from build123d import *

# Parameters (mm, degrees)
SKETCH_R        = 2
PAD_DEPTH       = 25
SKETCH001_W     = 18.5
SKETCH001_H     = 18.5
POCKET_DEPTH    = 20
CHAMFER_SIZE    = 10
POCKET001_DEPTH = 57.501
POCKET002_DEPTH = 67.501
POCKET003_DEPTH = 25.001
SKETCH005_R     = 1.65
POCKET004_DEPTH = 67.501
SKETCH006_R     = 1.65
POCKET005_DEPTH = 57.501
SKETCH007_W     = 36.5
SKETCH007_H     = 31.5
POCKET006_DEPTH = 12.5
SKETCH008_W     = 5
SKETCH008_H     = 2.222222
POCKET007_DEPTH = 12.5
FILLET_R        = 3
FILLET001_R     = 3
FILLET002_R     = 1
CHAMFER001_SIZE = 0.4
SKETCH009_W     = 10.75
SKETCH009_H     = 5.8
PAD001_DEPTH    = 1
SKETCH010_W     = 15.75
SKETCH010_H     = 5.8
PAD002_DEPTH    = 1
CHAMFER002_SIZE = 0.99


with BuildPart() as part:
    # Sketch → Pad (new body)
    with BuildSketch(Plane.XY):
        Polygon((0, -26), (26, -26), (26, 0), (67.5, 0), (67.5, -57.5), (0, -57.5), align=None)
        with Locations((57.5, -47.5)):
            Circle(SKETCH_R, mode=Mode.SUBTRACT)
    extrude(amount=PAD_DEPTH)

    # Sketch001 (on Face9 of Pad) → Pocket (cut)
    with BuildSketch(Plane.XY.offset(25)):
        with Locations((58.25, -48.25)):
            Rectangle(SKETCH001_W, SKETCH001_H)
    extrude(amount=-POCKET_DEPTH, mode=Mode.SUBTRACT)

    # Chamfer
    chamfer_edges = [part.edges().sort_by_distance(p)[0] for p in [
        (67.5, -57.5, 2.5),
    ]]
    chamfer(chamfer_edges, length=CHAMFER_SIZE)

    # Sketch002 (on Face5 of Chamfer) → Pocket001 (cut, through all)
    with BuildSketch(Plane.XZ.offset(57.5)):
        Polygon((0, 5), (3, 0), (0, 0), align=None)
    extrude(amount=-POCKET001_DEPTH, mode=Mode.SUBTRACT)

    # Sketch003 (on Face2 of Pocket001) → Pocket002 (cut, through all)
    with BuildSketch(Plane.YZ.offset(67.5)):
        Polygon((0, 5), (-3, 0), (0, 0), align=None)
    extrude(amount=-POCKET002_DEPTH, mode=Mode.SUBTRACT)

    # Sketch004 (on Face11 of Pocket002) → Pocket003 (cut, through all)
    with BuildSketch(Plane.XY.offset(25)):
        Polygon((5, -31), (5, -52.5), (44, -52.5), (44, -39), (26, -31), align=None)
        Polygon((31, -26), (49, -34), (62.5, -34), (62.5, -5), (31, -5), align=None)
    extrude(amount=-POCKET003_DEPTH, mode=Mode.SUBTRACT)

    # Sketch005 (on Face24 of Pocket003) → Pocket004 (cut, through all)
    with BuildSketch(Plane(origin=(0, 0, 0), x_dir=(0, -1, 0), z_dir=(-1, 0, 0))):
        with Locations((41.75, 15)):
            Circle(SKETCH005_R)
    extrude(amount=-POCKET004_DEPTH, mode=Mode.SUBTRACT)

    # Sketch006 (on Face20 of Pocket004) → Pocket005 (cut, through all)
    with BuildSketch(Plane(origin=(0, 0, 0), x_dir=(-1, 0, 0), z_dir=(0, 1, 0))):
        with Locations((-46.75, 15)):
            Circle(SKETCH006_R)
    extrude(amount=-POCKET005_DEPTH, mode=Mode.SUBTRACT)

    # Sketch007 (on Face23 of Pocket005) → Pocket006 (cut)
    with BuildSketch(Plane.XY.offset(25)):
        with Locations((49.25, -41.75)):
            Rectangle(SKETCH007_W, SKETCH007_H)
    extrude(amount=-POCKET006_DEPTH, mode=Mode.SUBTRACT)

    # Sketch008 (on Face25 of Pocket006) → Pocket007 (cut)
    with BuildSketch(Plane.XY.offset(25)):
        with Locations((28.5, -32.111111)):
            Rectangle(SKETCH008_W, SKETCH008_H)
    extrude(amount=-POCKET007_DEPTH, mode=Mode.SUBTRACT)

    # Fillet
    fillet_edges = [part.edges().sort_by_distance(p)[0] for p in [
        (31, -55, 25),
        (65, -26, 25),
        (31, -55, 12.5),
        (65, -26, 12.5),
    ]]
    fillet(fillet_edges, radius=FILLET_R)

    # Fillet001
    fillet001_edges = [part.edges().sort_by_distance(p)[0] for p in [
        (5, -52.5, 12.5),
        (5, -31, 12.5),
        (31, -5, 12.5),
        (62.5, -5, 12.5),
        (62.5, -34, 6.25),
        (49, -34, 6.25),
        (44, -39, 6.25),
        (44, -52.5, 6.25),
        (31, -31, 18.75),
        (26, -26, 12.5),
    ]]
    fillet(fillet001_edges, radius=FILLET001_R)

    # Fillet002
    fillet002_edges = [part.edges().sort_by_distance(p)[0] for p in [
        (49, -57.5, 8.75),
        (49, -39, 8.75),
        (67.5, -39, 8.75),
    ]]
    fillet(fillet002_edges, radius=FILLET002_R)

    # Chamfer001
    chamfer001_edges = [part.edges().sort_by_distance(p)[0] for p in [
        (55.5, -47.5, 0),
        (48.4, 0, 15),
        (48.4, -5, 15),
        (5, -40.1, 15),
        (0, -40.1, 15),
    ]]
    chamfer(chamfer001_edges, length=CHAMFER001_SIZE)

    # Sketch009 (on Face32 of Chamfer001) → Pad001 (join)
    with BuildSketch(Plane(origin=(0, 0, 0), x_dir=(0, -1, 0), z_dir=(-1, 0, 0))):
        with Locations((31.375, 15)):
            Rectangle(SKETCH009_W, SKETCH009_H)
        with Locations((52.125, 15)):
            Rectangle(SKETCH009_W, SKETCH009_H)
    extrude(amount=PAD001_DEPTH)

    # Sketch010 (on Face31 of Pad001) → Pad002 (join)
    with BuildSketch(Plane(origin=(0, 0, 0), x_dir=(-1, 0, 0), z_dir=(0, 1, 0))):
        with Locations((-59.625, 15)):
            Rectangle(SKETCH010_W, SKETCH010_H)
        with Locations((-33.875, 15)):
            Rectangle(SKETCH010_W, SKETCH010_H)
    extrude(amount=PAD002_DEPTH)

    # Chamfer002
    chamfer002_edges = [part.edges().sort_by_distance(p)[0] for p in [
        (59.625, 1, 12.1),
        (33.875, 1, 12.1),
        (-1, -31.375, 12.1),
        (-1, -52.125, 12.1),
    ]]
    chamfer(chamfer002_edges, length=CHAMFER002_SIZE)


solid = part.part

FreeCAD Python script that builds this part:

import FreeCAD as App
import Part
import Sketcher
Q = App.Units.Quantity


def edges_at(feature, points):
    """Names of the edges that pass closest to the given points."""
    edges = feature.Shape.Edges
    near = lambda p: min(range(len(edges)), key=lambda i: edges[i].distToShape(Part.Vertex(*p))[0])
    return sorted({f"Edge{near(p) + 1}" for p in points})


def add_polygon(sketch, points):
    """Adds a closed chain of lines whose ends are joined by coincident constraints."""
    first, n = sketch.GeometryCount, len(points)
    for a, b in zip(points, points[1:] + points[:1]):
        sketch.addGeometry(Part.LineSegment(App.Vector(*a, 0), App.Vector(*b, 0)), False)
    for i in range(n):
        sketch.addConstraint(Sketcher.Constraint("Coincident", first + i, 2, first + (i + 1) % n, 1))

doc = App.newDocument("Part")
body = doc.addObject("PartDesign::Body", "Body")

# Sketch on XY plane
sketch1 = body.newObject("Sketcher::SketchObject", "Sketch")
sketch1.AttachmentSupport = (doc.getObject("XY_Plane"), [""])
sketch1.MapMode = "FlatFace"
add_polygon(sketch1, [(26, -26), (0, -26), (0, -57.5), (67.5, -57.5), (67.5, 0), (26, 0)])  # lines 0-5
sketch1.addGeometry(Part.Circle(App.Vector(57.5, -47.5, 0), App.Vector(0, 0, 1), 2), False)  # 6
sketch1.addConstraint([
    Sketcher.Constraint("Horizontal", 0),
    Sketcher.Constraint("Vertical", 1),
    Sketcher.Constraint("Horizontal", 2),
    Sketcher.Constraint("Vertical", 3),
    Sketcher.Constraint("Horizontal", 4),
    Sketcher.Constraint("Vertical", 5),
    Sketcher.Constraint("PointOnObject", 0, 2, -2),
    Sketcher.Constraint("PointOnObject", 3, 2, -1),
    Sketcher.Constraint("Equal", 0, 5),
    Sketcher.Constraint("Diameter", 6, Q("4 mm")),
    Sketcher.Constraint("DistanceX", 0, 2, 0, 1, Q("26 mm")),
    Sketcher.Constraint("DistanceX", 2, 1, 2, 2, Q("67.5 mm")),
    Sketcher.Constraint("DistanceY", 1, 2, 1, 1, Q("31.5 mm")),
    Sketcher.Constraint("DistanceY", 1, 2, 6, 3, Q("10 mm")),
    Sketcher.Constraint("DistanceX", 6, 3, 2, 2, Q("10 mm")),
])
pad1 = body.newObject("PartDesign::Pad", "Pad")
pad1.Profile = sketch1
pad1.Length = 25

# Sketch on XY plane
sketch2 = body.newObject("Sketcher::SketchObject", "Sketch001")
sketch2.AttachmentSupport = (doc.getObject("XY_Plane"), [""])
sketch2.MapMode = "FlatFace"
sketch2.AttachmentOffset = App.Placement(App.Vector(0, 0, 25), App.Rotation())
add_polygon(sketch2, [(49, -39), (49, -58), (68, -58), (68, -39)])  # lines 0-3
sketch2.addConstraint([
    Sketcher.Constraint("Vertical", 0),
    Sketcher.Constraint("Horizontal", 1),
    Sketcher.Constraint("Vertical", 2),
    Sketcher.Constraint("Horizontal", 3),
    Sketcher.Constraint("Equal", 3, 0),
    Sketcher.Constraint("DistanceX", 1, 1, 1, 2, Q("18.5 mm")),
    Sketcher.Constraint("DistanceX", -1, 1, 0, 2, Q("49 mm")),
    Sketcher.Constraint("DistanceY", 2, 2, -1, 1, Q("39 mm")),
])
pocket1 = body.newObject("PartDesign::Pocket", "Pocket")
pocket1.Profile = sketch2
pocket1.Length = 20
doc.recompute()

chamfer = body.newObject("PartDesign::Chamfer", "Chamfer")
chamfer.Base = (pocket1, edges_at(pocket1, [(67.5, -57.5, 2.5)]))
chamfer.Size = 10

# Sketch on XZ plane
sketch3 = body.newObject("Sketcher::SketchObject", "Sketch002")
sketch3.AttachmentSupport = (doc.getObject("XZ_Plane"), [""])
sketch3.MapMode = "FlatFace"
sketch3.AttachmentOffset = App.Placement(App.Vector(0, 0, 57.5), App.Rotation())
add_polygon(sketch3, [(3, 0), (0, 5), (0, 0)])  # lines 0-2
sketch3.addConstraint([
    Sketcher.Constraint("Vertical", 1),
    Sketcher.Constraint("Horizontal", 2),
    Sketcher.Constraint("Coincident", 1, 2, -1, 1),
    Sketcher.Constraint("DistanceX", 2, 1, 2, 2, Q("3 mm")),
    Sketcher.Constraint("DistanceY", 1, 2, 1, 1, Q("5 mm")),
])
pocket2 = body.newObject("PartDesign::Pocket", "Pocket001")
pocket2.Profile = sketch3
pocket2.Type = "ThroughAll"

# Sketch on YZ plane
sketch4 = body.newObject("Sketcher::SketchObject", "Sketch003")
sketch4.AttachmentSupport = (doc.getObject("YZ_Plane"), [""])
sketch4.MapMode = "FlatFace"
sketch4.AttachmentOffset = App.Placement(App.Vector(0, 0, 67.5), App.Rotation())
add_polygon(sketch4, [(0, 5), (-3, 0), (0, 0)])  # lines 0-2
sketch4.addConstraint([
    Sketcher.Constraint("Horizontal", 1),
    Sketcher.Constraint("Vertical", 2),
    Sketcher.Constraint("Coincident", 1, 2, -1, 1),
    Sketcher.Constraint("DistanceX", 1, 1, 1, 2, Q("3 mm")),
    Sketcher.Constraint("DistanceY", 2, 1, 2, 2, Q("5 mm")),
])
pocket3 = body.newObject("PartDesign::Pocket", "Pocket002")
pocket3.Profile = sketch4
pocket3.Type = "ThroughAll"

# Sketch on XY plane
sketch5 = body.newObject("Sketcher::SketchObject", "Sketch004")
sketch5.AttachmentSupport = (doc.getObject("XY_Plane"), [""])
sketch5.MapMode = "FlatFace"
sketch5.AttachmentOffset = App.Placement(App.Vector(0, 0, 25), App.Rotation())
add_polygon(sketch5, [(5, -31), (5, -52), (44, -52), (44, -39), (26, -31)])  # lines 0-4
add_polygon(sketch5, [(31, -26), (49, -34), (62, -34), (62, -5), (31, -5)])  # lines 5-9
sketch5.addConstraint([
    Sketcher.Constraint("Vertical", 0),
    Sketcher.Constraint("Horizontal", 1),
    Sketcher.Constraint("Vertical", 2),
    Sketcher.Constraint("Horizontal", 4),
    Sketcher.Constraint("Horizontal", 6),
    Sketcher.Constraint("Vertical", 7),
    Sketcher.Constraint("Horizontal", 8),
    Sketcher.Constraint("Vertical", 9),
    Sketcher.Constraint("Parallel", 3, 5),
    Sketcher.Constraint("Equal", 6, 2),
    Sketcher.Constraint("Equal", 4, 9),
    Sketcher.Constraint("Equal", 3, 5),
    Sketcher.Constraint("DistanceX", 1, 1, 1, 2, Q("39 mm")),
    Sketcher.Constraint("DistanceX", 4, 2, 4, 1, Q("21 mm")),
    Sketcher.Constraint("DistanceY", 7, 1, 7, 2, Q("29 mm")),
    Sketcher.Constraint("DistanceX", 6, 1, 6, 2, Q("13.5 mm")),
    Sketcher.Constraint("DistanceX", -1, 1, 0, 2, Q("5 mm")),
    Sketcher.Constraint("DistanceY", 2, 2, -1, 1, Q("39 mm")),
    Sketcher.Constraint("DistanceX", -1, 1, 5, 2, Q("49 mm")),
    Sketcher.Constraint("DistanceY", 5, 2, -1, 1, Q("34 mm")),
])
pocket4 = body.newObject("PartDesign::Pocket", "Pocket003")
pocket4.Profile = sketch5
pocket4.Type = "ThroughAll"

# Sketch on YZ plane
sketch6 = body.newObject("Sketcher::SketchObject", "Sketch005")
sketch6.AttachmentSupport = (doc.getObject("YZ_Plane"), [""])
sketch6.MapMode = "FlatFace"
sketch6.addGeometry(Part.Circle(App.Vector(-41.8, 15, 0), App.Vector(0, 0, 1), 1.6), False)
sketch6.addConstraint([
    Sketcher.Constraint("Diameter", 0, Q("3.3 mm")),
    Sketcher.Constraint("DistanceY", -1, 1, 0, 3, Q("15 mm")),
    Sketcher.Constraint("DistanceX", 0, 3, -1, 1, Q("41.75 mm")),
])
pocket5 = body.newObject("PartDesign::Pocket", "Pocket004")
pocket5.Profile = sketch6
pocket5.Type = "ThroughAll"
pocket5.Reversed = True

# Sketch on XZ plane
sketch7 = body.newObject("Sketcher::SketchObject", "Sketch006")
sketch7.AttachmentSupport = (doc.getObject("XZ_Plane"), [""])
sketch7.MapMode = "FlatFace"
sketch7.addGeometry(Part.Circle(App.Vector(46.8, 15, 0), App.Vector(0, 0, 1), 1.6), False)
sketch7.addConstraint([
    Sketcher.Constraint("Diameter", 0, Q("3.3 mm")),
    Sketcher.Constraint("DistanceY", -1, 1, 0, 3, Q("15 mm")),
    Sketcher.Constraint("DistanceX", -1, 1, 0, 3, Q("46.75 mm")),
])
pocket6 = body.newObject("PartDesign::Pocket", "Pocket005")
pocket6.Profile = sketch7
pocket6.Type = "ThroughAll"
pocket6.Reversed = True

# Sketch on XY plane
sketch8 = body.newObject("Sketcher::SketchObject", "Sketch007")
sketch8.AttachmentSupport = (doc.getObject("XY_Plane"), [""])
sketch8.MapMode = "FlatFace"
sketch8.AttachmentOffset = App.Placement(App.Vector(0, 0, 25), App.Rotation())
add_polygon(sketch8, [(31, -26), (31, -58), (68, -58), (68, -26)])  # lines 0-3
sketch8.addConstraint([
    Sketcher.Constraint("Vertical", 0),
    Sketcher.Constraint("Horizontal", 1),
    Sketcher.Constraint("Vertical", 2),
    Sketcher.Constraint("Horizontal", 3),
    Sketcher.Constraint("DistanceX", 1, 1, 1, 2, Q("36.5 mm")),
    Sketcher.Constraint("DistanceY", 0, 2, 0, 1, Q("31.5 mm")),
    Sketcher.Constraint("DistanceX", -1, 1, 0, 2, Q("31 mm")),
    Sketcher.Constraint("DistanceY", 2, 2, -1, 1, Q("26 mm")),
])
pocket7 = body.newObject("PartDesign::Pocket", "Pocket006")
pocket7.Profile = sketch8
pocket7.Length = 12.5

# Sketch on XY plane
sketch9 = body.newObject("Sketcher::SketchObject", "Sketch008")
sketch9.AttachmentSupport = (doc.getObject("XY_Plane"), [""])
sketch9.MapMode = "FlatFace"
sketch9.AttachmentOffset = App.Placement(App.Vector(0, 0, 25), App.Rotation())
add_polygon(sketch9, [(26, -31), (26, -33.2), (31, -33.2), (31, -31)])  # lines 0-3
sketch9.addConstraint([
    Sketcher.Constraint("Vertical", 0),
    Sketcher.Constraint("Horizontal", 1),
    Sketcher.Constraint("Vertical", 2),
    Sketcher.Constraint("Horizontal", 3),
    Sketcher.Constraint("DistanceX", 1, 1, 1, 2, Q("5 mm")),
    Sketcher.Constraint("DistanceX", -1, 1, 0, 2, Q("26 mm")),
    Sketcher.Constraint("DistanceY", 2, 2, -1, 1, Q("31 mm")),
    Sketcher.Constraint("DistanceY", 0, 2, 0, 1, Q("2.222222 mm")),
])
pocket8 = body.newObject("PartDesign::Pocket", "Pocket007")
pocket8.Profile = sketch9
pocket8.Length = 12.5
doc.recompute()

fillet = body.newObject("PartDesign::Fillet", "Fillet")
fillet.Base = (pocket8, edges_at(pocket8, [
    (31, -55, 25),
    (65, -26, 25),
    (31, -55, 12.5),
    (65, -26, 12.5),
]))
fillet.Radius = 3
doc.recompute()

fillet2 = body.newObject("PartDesign::Fillet", "Fillet001")
fillet2.Base = (fillet, edges_at(fillet, [
    (5, -52.5, 12.5),
    (5, -31, 12.5),
    (31, -5, 12.5),
    (62.5, -5, 12.5),
    (62.5, -34, 6.25),
    (49, -34, 6.25),
    (44, -39, 6.25),
    (44, -52.5, 6.25),
    (31, -31, 18.75),
    (26, -26, 12.5),
]))
fillet2.Radius = 3
doc.recompute()

fillet3 = body.newObject("PartDesign::Fillet", "Fillet002")
fillet3.Base = (fillet2, edges_at(fillet2, [(49, -57.5, 8.75), (49, -39, 8.75), (67.5, -39, 8.75)]))
fillet3.Radius = 1
doc.recompute()

chamfer2 = body.newObject("PartDesign::Chamfer", "Chamfer001")
chamfer2.Base = (fillet3, edges_at(fillet3, [
    (55.5, -47.5, 0),
    (48.4, 0, 15),
    (48.4, -5, 15),
    (5, -40.1, 15),
    (0, -40.1, 15),
]))
chamfer2.Size = 0.4

# Sketch on YZ plane
sketch10 = body.newObject("Sketcher::SketchObject", "Sketch009")
sketch10.AttachmentSupport = (doc.getObject("YZ_Plane"), [""])
sketch10.MapMode = "FlatFace"
add_polygon(sketch10, [(-26, 18), (-26, 12), (-37, 12), (-37, 18)])  # lines 0-3
add_polygon(sketch10, [(-47, 18), (-47, 12), (-58, 12), (-58, 18)])  # lines 4-7
sketch10.addConstraint([
    Sketcher.Constraint("Vertical", 0),
    Sketcher.Constraint("Horizontal", 1),
    Sketcher.Constraint("Vertical", 2),
    Sketcher.Constraint("Horizontal", 3),
    Sketcher.Constraint("Vertical", 4),
    Sketcher.Constraint("Horizontal", 5),
    Sketcher.Constraint("Vertical", 6),
    Sketcher.Constraint("Horizontal", 7),
    Sketcher.Constraint("Horizontal", 1, 2, 4, 2),
    Sketcher.Constraint("Horizontal", 3, 2, 6, 2),
    Sketcher.Constraint("Equal", 3, 5),
    Sketcher.Constraint("DistanceY", 0, 2, 0, 1, Q("5.8 mm")),
    Sketcher.Constraint("DistanceX", 0, 2, -1, 1, Q("26 mm")),
    Sketcher.Constraint("DistanceX", 4, 2, 1, 2, Q("10 mm")),
    Sketcher.Constraint("DistanceX", 1, 2, 1, 1, Q("10.75 mm")),
    Sketcher.Constraint("DistanceY", -1, 1, 0, 2, Q("12.1 mm")),
])
pad2 = body.newObject("PartDesign::Pad", "Pad001")
pad2.Profile = sketch10
pad2.Length = 1
pad2.Reversed = True

# Sketch on XZ plane
sketch11 = body.newObject("Sketcher::SketchObject", "Sketch010")
sketch11.AttachmentSupport = (doc.getObject("XZ_Plane"), [""])
sketch11.MapMode = "FlatFace"
add_polygon(sketch11, [(68, 18), (68, 12), (52, 12), (52, 18)])  # lines 0-3
add_polygon(sketch11, [(42, 18), (42, 12), (26, 12), (26, 18)])  # lines 4-7
sketch11.addConstraint([
    Sketcher.Constraint("Vertical", 0),
    Sketcher.Constraint("Horizontal", 1),
    Sketcher.Constraint("Vertical", 2),
    Sketcher.Constraint("Horizontal", 3),
    Sketcher.Constraint("Vertical", 4),
    Sketcher.Constraint("Horizontal", 5),
    Sketcher.Constraint("Vertical", 6),
    Sketcher.Constraint("Horizontal", 7),
    Sketcher.Constraint("Horizontal", 1, 2, 4, 2),
    Sketcher.Constraint("Horizontal", 3, 2, 6, 2),
    Sketcher.Constraint("Equal", 3, 5),
    Sketcher.Constraint("DistanceY", 0, 2, 0, 1, Q("5.8 mm")),
    Sketcher.Constraint("DistanceX", -1, 1, 5, 2, Q("26 mm")),
    Sketcher.Constraint("DistanceX", 4, 2, 1, 2, Q("10 mm")),
    Sketcher.Constraint("DistanceX", 1, 2, 1, 1, Q("15.75 mm")),
    Sketcher.Constraint("DistanceY", -1, 1, 0, 2, Q("12.1 mm")),
])
pad3 = body.newObject("PartDesign::Pad", "Pad002")
pad3.Profile = sketch11
pad3.Length = 1
pad3.Reversed = True
doc.recompute()

chamfer3 = body.newObject("PartDesign::Chamfer", "Chamfer002")
chamfer3.Base = (pad3, edges_at(pad3, [
    (59.625, 1, 12.1),
    (33.875, 1, 12.1),
    (-1, -31.375, 12.1),
    (-1, -52.125, 12.1),
]))
chamfer3.Size = 0.99

doc.recompute()
